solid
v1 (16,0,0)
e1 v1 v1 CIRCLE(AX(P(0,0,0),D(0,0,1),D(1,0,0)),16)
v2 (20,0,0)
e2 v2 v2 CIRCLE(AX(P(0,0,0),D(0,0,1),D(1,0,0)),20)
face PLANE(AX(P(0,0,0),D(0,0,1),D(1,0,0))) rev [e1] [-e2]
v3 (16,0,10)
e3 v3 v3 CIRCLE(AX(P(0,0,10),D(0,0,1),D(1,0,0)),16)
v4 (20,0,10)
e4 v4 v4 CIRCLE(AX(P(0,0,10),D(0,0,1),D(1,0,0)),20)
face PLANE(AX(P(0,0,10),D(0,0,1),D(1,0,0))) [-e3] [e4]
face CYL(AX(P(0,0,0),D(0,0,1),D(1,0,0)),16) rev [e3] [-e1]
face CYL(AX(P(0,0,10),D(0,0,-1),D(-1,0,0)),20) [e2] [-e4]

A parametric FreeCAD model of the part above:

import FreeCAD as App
import Part
import Sketcher
from FreeCAD import Vector
Q = App.Units.Quantity

doc = App.newDocument("Part")
body = doc.addObject("PartDesign::Body", "Body")

sketch1 = body.newObject("Sketcher::SketchObject", "Sketch")
sketch1.AttachmentSupport = (doc.getObject("XY_Plane"), [""])
sketch1.MapMode = "FlatFace"
sketch1.addGeometry(Part.Circle(Vector(0, 0, 0), Vector(0, 0, 1), 20), False)
sketch1.addConstraint(Sketcher.Constraint("Coincident", 0, 3, -1, 1))
sketch1.addConstraint(Sketcher.Constraint("Diameter", 0, Q("40 mm")))
pad1 = body.newObject("PartDesign::Pad", "Pad")
pad1.Profile = sketch1
pad1.Length = 10

sketch2 = body.newObject("Sketcher::SketchObject", "Sketch001")
sketch2.AttachmentSupport = (doc.getObject("XY_Plane"), [""])
sketch2.MapMode = "FlatFace"
sketch2.AttachmentOffset = App.Placement(Vector(0, 0, 10), App.Rotation())
sketch2.addGeometry(Part.Circle(Vector(0, 0, 0), Vector(0, 0, 1), 16), False)
sketch2.addConstraint(Sketcher.Constraint("Coincident", 0, 3, -1, 1))
sketch2.addConstraint(Sketcher.Constraint("Diameter", 0, Q("32 mm")))
pocket1 = body.newObject("PartDesign::Pocket", "Pocket")
pocket1.Profile = sketch2
pocket1.Type = "ThroughAll"

doc.recompute()
